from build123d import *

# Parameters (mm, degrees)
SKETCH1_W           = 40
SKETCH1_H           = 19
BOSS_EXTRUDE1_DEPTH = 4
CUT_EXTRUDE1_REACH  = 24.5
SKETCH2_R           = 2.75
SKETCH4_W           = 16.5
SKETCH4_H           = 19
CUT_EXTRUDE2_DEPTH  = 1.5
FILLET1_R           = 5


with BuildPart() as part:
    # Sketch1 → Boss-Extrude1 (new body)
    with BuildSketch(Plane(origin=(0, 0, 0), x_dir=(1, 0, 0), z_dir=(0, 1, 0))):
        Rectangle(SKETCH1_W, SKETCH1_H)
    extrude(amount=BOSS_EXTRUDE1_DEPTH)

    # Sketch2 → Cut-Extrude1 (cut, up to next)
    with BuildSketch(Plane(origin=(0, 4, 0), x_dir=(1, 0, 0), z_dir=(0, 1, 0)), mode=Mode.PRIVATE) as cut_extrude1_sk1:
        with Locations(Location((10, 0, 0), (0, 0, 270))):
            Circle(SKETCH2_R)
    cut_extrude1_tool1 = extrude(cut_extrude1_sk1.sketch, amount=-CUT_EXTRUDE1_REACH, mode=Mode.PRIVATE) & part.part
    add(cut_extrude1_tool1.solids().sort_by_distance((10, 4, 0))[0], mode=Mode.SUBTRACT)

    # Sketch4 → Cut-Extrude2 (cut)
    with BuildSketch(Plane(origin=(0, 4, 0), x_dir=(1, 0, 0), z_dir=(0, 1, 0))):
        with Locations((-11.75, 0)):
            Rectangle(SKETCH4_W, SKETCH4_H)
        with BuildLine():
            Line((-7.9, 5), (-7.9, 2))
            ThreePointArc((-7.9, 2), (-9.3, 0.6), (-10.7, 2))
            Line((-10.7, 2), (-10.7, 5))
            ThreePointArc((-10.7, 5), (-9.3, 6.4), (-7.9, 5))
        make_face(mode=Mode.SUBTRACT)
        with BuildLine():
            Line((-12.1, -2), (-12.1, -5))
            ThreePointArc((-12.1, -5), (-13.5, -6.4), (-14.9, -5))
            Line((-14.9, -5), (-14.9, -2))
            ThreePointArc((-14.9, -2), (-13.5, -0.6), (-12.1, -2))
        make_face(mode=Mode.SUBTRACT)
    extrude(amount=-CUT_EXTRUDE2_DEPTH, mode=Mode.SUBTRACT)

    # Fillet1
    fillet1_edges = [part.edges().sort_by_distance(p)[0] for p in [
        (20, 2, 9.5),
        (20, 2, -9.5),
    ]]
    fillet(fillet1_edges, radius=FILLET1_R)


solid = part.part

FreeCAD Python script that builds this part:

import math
import FreeCAD as App
import Part
import Sketcher
from FreeCAD import Vector
Q = App.Units.Quantity


def edges_at(feature, points):
    """Names of the edges that pass closest to the given points."""
    edges = feature.Shape.Edges
    near = lambda p: min(range(len(edges)), key=lambda i: edges[i].distToShape(Part.Vertex(*p))[0])
    return sorted({f"Edge{near(p) + 1}" for p in points})


def add_polygon(sketch, points):
    """Adds a closed chain of lines whose ends are joined by coincident constraints."""
    first, n = sketch.GeometryCount, len(points)
    for a, b in zip(points, points[1:] + points[:1]):
        sketch.addGeometry(Part.LineSegment(App.Vector(*a, 0), App.Vector(*b, 0)), False)
    for i in range(n):
        sketch.addConstraint(Sketcher.Constraint("Coincident", first + i, 2, first + (i + 1) % n, 1))

doc = App.newDocument("Part")
body = doc.addObject("PartDesign::Body", "Body")

sketch1 = body.newObject("Sketcher::SketchObject", "Sketch")
sketch1.AttachmentSupport = (doc.getObject("XZ_Plane"), [""])
sketch1.MapMode = "FlatFace"
add_polygon(sketch1, [(-20, -10), (-20, 10), (20, 10), (20, -10)])
sketch1.addConstraint([
    Sketcher.Constraint("Vertical", 0),
    Sketcher.Constraint("Horizontal", 1),
    Sketcher.Constraint("Vertical", 2),
    Sketcher.Constraint("Horizontal", 3),
    Sketcher.Constraint("Symmetric", 0, 2, 2, 2, -1, 1),
    Sketcher.Constraint("DistanceX", 1, 1, 1, 2, Q("40 mm")),
    Sketcher.Constraint("DistanceY", 0, 1, 0, 2, Q("19 mm")),
])
pad1 = body.newObject("PartDesign::Pad", "Pad")
pad1.Profile = sketch1
pad1.Length = 4
pad1.Reversed = True

sketch2 = body.newObject("Sketcher::SketchObject", "Sketch001")
sketch2.AttachmentSupport = (doc.getObject("XZ_Plane"), [""])
sketch2.MapMode = "FlatFace"
sketch2.AttachmentOffset = App.Placement(Vector(0, 0, -4), App.Rotation())
sketch2.addGeometry(Part.Circle(Vector(10, 0, 0), Vector(0, 0, 1), 2.8), False)
sketch2.addConstraint([
    Sketcher.Constraint("PointOnObject", 0, 3, -1),
    Sketcher.Constraint("Diameter", 0, Q("5.5 mm")),
    Sketcher.Constraint("DistanceX", -1, 1, 0, 3, Q("10 mm")),
])
pocket1 = body.newObject("PartDesign::Pocket", "Pocket")
pocket1.Profile = sketch2
pocket1.Type = "UpToFirst"
pocket1.Reversed = True

sketch3 = body.newObject("Sketcher::SketchObject", "Sketch002")
sketch3.AttachmentSupport = (doc.getObject("XZ_Plane"), [""])
sketch3.MapMode = "FlatFace"
sketch3.AttachmentOffset = App.Placement(Vector(0, 0, -4), App.Rotation())
add_polygon(sketch3, [(-20, -9.5), (-20, 9.5), (-3.5, 9.5), (-3.5, -9.5)])
sketch3.addGeometry(Part.ArcOfCircle(Part.Circle(Vector(-13.5, 2, 0), Vector(0, 0, 1), 1.4), math.radians(180), math.radians(360)), False)
sketch3.addGeometry(Part.LineSegment(Vector(-12.1, 2, 0), Vector(-12.1, 5, 0)), False)
sketch3.addGeometry(Part.ArcOfCircle(Part.Circle(Vector(-13.5, 5, 0), Vector(0, 0, 1), 1.4), math.radians(0), math.radians(180)), False)
sketch3.addGeometry(Part.LineSegment(Vector(-14.9, 5, 0), Vector(-14.9, 2, 0)), False)
sketch3.addGeometry(Part.ArcOfCircle(Part.Circle(Vector(-9.3, -5, 0), Vector(0, 0, 1), 1.4), math.radians(180), math.radians(360)), False)
sketch3.addGeometry(Part.LineSegment(Vector(-7.9, -5, 0), Vector(-7.9, -2, 0)), False)
sketch3.addGeometry(Part.ArcOfCircle(Part.Circle(Vector(-9.3, -2, 0), Vector(0, 0, 1), 1.4), math.radians(0), math.radians(180)), False)
sketch3.addGeometry(Part.LineSegment(Vector(-10.7, -2, 0), Vector(-10.7, -5, 0)), False)
sketch3.addConstraint([
    Sketcher.Constraint("Tangent", 4, 2, 5, 1),
    Sketcher.Constraint("Tangent", 5, 2, 6, 1),
    Sketcher.Constraint("Tangent", 6, 2, 7, 1),
    Sketcher.Constraint("Tangent", 7, 2, 4, 1),
    Sketcher.Constraint("Tangent", 8, 2, 9, 1),
    Sketcher.Constraint("Tangent", 9, 2, 10, 1),
    Sketcher.Constraint("Tangent", 10, 2, 11, 1),
    Sketcher.Constraint("Tangent", 11, 2, 8, 1),
    Sketcher.Constraint("Vertical", 0),
    Sketcher.Constraint("Horizontal", 1),
    Sketcher.Constraint("Vertical", 2),
    Sketcher.Constraint("Horizontal", 3),
    Sketcher.Constraint("Vertical", 5),
    Sketcher.Constraint("Vertical", 7),
    Sketcher.Constraint("Vertical", 9),
    Sketcher.Constraint("Vertical", 11),
    Sketcher.Constraint("Equal", 6, 8),
    Sketcher.Constraint("Equal", 7, 9),
    Sketcher.Constraint("Radius", 4, Q("1.4 mm")),
    Sketcher.Constraint("DistanceY", 0, 1, 0, 2, Q("19 mm")),
    Sketcher.Constraint("DistanceY", 5, 1, 5, 2, Q("3 mm")),
    Sketcher.Constraint("DistanceX", 1, 1, 1, 2, Q("16.5 mm")),
    Sketcher.Constraint("DistanceY", -1, 1, 4, 3, Q("2 mm")),
    Sketcher.Constraint("DistanceY", 8, 3, -1, 1, Q("5 mm")),
    Sketcher.Constraint("DistanceX", 0, 2, -1, 1, Q("20 mm")),
    Sketcher.Constraint("DistanceX", 6, 3, 1, 2, Q("10 mm")),
    Sketcher.Constraint("DistanceX", 8, 3, -1, 1, Q("9.3 mm")),
    Sketcher.Constraint("DistanceY", -1, 1, 0, 2, Q("9.5 mm")),
])
pocket2 = body.newObject("PartDesign::Pocket", "Pocket001")
pocket2.Profile = sketch3
pocket2.Length = 1.5
pocket2.Reversed = True
doc.recompute()

fillet = body.newObject("PartDesign::Fillet", "Fillet")
fillet.Base = (pocket2, edges_at(pocket2, [(20, 2, 9.5), (20, 2, -9.5)]))
fillet.Radius = 5

doc.recompute()
